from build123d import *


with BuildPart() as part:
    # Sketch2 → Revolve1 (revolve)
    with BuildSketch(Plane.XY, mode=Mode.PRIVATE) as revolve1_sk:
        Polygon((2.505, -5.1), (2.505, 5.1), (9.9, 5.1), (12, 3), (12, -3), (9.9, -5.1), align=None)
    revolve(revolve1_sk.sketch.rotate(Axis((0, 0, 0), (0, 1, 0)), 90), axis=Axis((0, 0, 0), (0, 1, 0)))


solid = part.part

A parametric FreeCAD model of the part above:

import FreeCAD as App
import Part
import Sketcher
from FreeCAD import Vector
Q = App.Units.Quantity

doc = App.newDocument("Part")
body = doc.addObject("PartDesign::Body", "Body")

sketch1 = doc.addObject("Sketcher::SketchObject", "Sketch")
body.addObject(sketch1)
sketch1.AttachmentSupport = (doc.XY_Plane, [""])
sketch1.MapMode = "FlatFace"
sketch1.addGeometry([
    Part.LineSegment(Vector(2.5, 5.1, 0), Vector(2.5, -5.1, 0)),
    Part.LineSegment(Vector(2.5, -5.1, 0), Vector(9.9, -5.1, 0)),
    Part.LineSegment(Vector(9.9, -5.1, 0), Vector(12, -3, 0)),
    Part.LineSegment(Vector(12, -3, 0), Vector(12, 3, 0)),
    Part.LineSegment(Vector(12, 3, 0), Vector(9.9, 5.1, 0)),
    Part.LineSegment(Vector(9.9, 5.1, 0), Vector(2.5, 5.1, 0)),
], False)
sketch1.addConstraint([
    Sketcher.Constraint("Coincident", 0, 2, 1, 1),
    Sketcher.Constraint("Coincident", 1, 2, 2, 1),
    Sketcher.Constraint("Coincident", 2, 2, 3, 1),
    Sketcher.Constraint("Coincident", 3, 2, 4, 1),
    Sketcher.Constraint("Coincident", 4, 2, 5, 1),
    Sketcher.Constraint("Coincident", 5, 2, 0, 1),
    Sketcher.Constraint("Vertical", 0),
    Sketcher.Constraint("Horizontal", 1),
    Sketcher.Constraint("Vertical", 3),
    Sketcher.Constraint("Horizontal", 5),
    Sketcher.Constraint("Symmetric", 1, 2, 4, 2, -1),
    Sketcher.Constraint("Perpendicular", 2, 4),
    Sketcher.Constraint("Equal", 2, 4),
    Sketcher.Constraint("DistanceY", 3, 1, 3, 2, Q("6 mm")),
    Sketcher.Constraint("DistanceY", 0, 2, 0, 1, Q("10.2 mm")),
    Sketcher.Constraint("DistanceX", -1, 1, 2, 2, Q("12 mm")),
    Sketcher.Constraint("DistanceX", 1, 1, 1, 2, Q("7.395 mm")),
])
revolution = doc.addObject("PartDesign::Revolution", "Revolution")
body.addObject(revolution)
revolution.Profile = sketch1
revolution.ReferenceAxis = (sketch1, ["V_Axis"])
revolution.Angle = 360

doc.recompute()
